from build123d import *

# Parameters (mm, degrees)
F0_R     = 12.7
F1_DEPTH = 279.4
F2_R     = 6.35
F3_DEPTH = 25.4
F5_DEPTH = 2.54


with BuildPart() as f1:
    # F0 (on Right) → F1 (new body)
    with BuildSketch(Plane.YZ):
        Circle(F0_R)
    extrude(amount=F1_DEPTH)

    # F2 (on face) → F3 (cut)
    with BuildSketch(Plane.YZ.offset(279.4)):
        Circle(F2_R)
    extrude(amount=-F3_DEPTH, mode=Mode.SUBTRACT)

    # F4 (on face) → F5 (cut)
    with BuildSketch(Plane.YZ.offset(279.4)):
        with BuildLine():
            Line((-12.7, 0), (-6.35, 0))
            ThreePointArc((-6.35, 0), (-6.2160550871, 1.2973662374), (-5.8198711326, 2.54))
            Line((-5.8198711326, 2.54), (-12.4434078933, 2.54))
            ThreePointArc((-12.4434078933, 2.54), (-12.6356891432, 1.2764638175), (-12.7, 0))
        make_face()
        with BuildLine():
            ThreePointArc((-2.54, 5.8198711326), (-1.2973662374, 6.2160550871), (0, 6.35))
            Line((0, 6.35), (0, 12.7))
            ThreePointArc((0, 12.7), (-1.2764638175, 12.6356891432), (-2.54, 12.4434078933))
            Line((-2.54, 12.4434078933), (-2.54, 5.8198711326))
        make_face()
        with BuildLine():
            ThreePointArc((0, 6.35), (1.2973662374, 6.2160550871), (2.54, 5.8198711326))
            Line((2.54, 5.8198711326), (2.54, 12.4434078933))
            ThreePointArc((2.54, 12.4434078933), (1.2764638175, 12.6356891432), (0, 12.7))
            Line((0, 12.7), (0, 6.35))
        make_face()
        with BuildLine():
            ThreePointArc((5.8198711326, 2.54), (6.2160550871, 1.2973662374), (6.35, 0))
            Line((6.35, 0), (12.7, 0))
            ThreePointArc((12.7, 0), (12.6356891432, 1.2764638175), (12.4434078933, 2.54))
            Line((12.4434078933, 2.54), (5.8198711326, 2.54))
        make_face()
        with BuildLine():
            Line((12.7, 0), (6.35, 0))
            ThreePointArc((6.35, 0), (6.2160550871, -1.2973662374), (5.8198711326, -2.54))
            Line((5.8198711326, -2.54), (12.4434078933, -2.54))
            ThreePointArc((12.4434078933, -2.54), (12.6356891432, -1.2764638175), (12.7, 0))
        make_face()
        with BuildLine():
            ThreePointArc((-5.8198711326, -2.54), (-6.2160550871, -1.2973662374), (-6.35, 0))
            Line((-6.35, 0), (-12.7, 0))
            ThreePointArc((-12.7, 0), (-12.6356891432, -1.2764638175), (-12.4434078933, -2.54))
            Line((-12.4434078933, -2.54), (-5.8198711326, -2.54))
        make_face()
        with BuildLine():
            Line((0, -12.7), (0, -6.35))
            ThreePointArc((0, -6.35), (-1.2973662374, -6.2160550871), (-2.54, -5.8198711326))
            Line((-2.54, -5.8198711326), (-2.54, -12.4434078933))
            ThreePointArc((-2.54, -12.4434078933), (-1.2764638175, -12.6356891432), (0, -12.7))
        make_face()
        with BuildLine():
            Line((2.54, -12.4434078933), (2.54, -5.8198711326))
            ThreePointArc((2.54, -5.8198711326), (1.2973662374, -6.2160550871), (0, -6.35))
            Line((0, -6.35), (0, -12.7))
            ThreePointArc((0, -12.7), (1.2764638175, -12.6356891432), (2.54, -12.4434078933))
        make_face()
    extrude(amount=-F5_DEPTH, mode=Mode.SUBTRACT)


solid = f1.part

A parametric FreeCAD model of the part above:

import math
import FreeCAD as App
import Part
import Sketcher

V = App.Vector
Q = App.Units.Quantity

doc = App.newDocument("Part")
body = doc.addObject("PartDesign::Body", "Body")

# Sketch on YZ plane
sketch1 = doc.addObject("Sketcher::SketchObject", "Sketch")
body.addObject(sketch1)
sketch1.AttachmentSupport = (doc.YZ_Plane, [""])
sketch1.MapMode = "FlatFace"
sketch1.addGeometry(Part.Circle(V(0, 0, 0), V(0, 0, 1), 13), False)
sketch1.addConstraint(Sketcher.Constraint("Coincident", 0, 3, -1, 1))
sketch1.addConstraint(Sketcher.Constraint("Diameter", 0, Q("1 in")))
pad1 = doc.addObject("PartDesign::Pad", "Pad")
body.addObject(pad1)
pad1.Profile = sketch1
pad1.Length = Q("11 in")

# Sketch on YZ plane
sketch2 = doc.addObject("Sketcher::SketchObject", "Sketch001")
body.addObject(sketch2)
sketch2.AttachmentSupport = (doc.YZ_Plane, [""])
sketch2.MapMode = "FlatFace"
sketch2.AttachmentOffset = App.Placement(V(0, 0, 11 * 25.4), App.Rotation())
sketch2.addGeometry(Part.Circle(V(0, 0, 0), V(0, 0, 1), 6), False)
sketch2.addConstraint(Sketcher.Constraint("Coincident", 0, 3, -1, 1))
sketch2.addConstraint(Sketcher.Constraint("Diameter", 0, Q("0.5 in")))
pocket1 = doc.addObject("PartDesign::Pocket", "Pocket")
body.addObject(pocket1)
pocket1.Profile = sketch2
pocket1.Length = Q("1 in")

# Sketch on YZ plane
sketch3 = doc.addObject("Sketcher::SketchObject", "Sketch002")
body.addObject(sketch3)
sketch3.AttachmentSupport = (doc.YZ_Plane, [""])
sketch3.MapMode = "FlatFace"
sketch3.AttachmentOffset = App.Placement(V(0, 0, 11 * 25.4), App.Rotation())
sketch3.addGeometry(Part.ArcOfCircle(Part.Circle(V(0, 0, 0), V(0, 0, 1), 6.4), math.radians(156), math.radians(180)), False)
sketch3.addGeometry(Part.LineSegment(V(-5.8, 2.5, 0), V(-12.4, 2.5, 0)), False)
sketch3.addGeometry(Part.ArcOfCircle(Part.Circle(V(0, 0, 0), V(0, 0, 1), 12.7), math.radians(168.46), math.radians(180)), False)
sketch3.addGeometry(Part.ArcOfCircle(Part.Circle(V(0, 0, 0), V(0, 0, 1), 12.7), math.radians(180), math.radians(191.54)), False)
sketch3.addGeometry(Part.LineSegment(V(-12.4, -2.5, 0), V(-5.8, -2.5, 0)), False)
sketch3.addGeometry(Part.ArcOfCircle(Part.Circle(V(0, 0, 0), V(0, 0, 1), 6.4), math.radians(180), math.radians(204)), False)
sketch3.addGeometry(Part.ArcOfCircle(Part.Circle(V(0, 0, 0), V(0, 0, 1), 6.4), math.radians(90), math.radians(114)), False)
sketch3.addGeometry(Part.ArcOfCircle(Part.Circle(V(0, 0, 0), V(0, 0, 1), 6.4), math.radians(66), math.radians(90)), False)
sketch3.addGeometry(Part.LineSegment(V(2.5, 5.8, 0), V(2.5, 12.4, 0)), False)
sketch3.addGeometry(Part.ArcOfCircle(Part.Circle(V(0, 0, 0), V(0, 0, 1), 12.7), math.radians(78.46), math.radians(90)), False)
sketch3.addGeometry(Part.ArcOfCircle(Part.Circle(V(0, 0, 0), V(0, 0, 1), 12.7), math.radians(90), math.radians(101.54)), False)
sketch3.addGeometry(Part.LineSegment(V(-2.5, 12.4, 0), V(-2.5, 5.8, 0)), False)
sketch3.addGeometry(Part.ArcOfCircle(Part.Circle(V(0, 0, 0), V(0, 0, 1), 6.4), math.radians(0), math.radians(24)), False)
sketch3.addGeometry(Part.ArcOfCircle(Part.Circle(V(0, 0, 0), V(0, 0, 1), 6.4), math.radians(-24), math.radians(0)), False)
sketch3.addGeometry(Part.LineSegment(V(5.8, -2.5, 0), V(12.4, -2.5, 0)), False)
sketch3.addGeometry(Part.ArcOfCircle(Part.Circle(V(0, 0, 0), V(0, 0, 1), 12.7), math.radians(-11.54), math.radians(0)), False)
sketch3.addGeometry(Part.ArcOfCircle(Part.Circle(V(0, 0, 0), V(0, 0, 1), 12.7), math.radians(0), math.radians(11.54)), False)
sketch3.addGeometry(Part.LineSegment(V(12.4, 2.5, 0), V(5.8, 2.5, 0)), False)
sketch3.addGeometry(Part.ArcOfCircle(Part.Circle(V(0, 0, 0), V(0, 0, 1), 6.4), math.radians(-114), math.radians(-90)), False)
sketch3.addGeometry(Part.LineSegment(V(-2.5, -5.8, 0), V(-2.5, -12.4, 0)), False)
sketch3.addGeometry(Part.ArcOfCircle(Part.Circle(V(0, 0, 0), V(0, 0, 1), 12.7), math.radians(-101.54), math.radians(-90)), False)
sketch3.addGeometry(Part.ArcOfCircle(Part.Circle(V(0, 0, 0), V(0, 0, 1), 12.7), math.radians(-90), math.radians(-78.46)), False)
sketch3.addGeometry(Part.LineSegment(V(2.5, -12.4, 0), V(2.5, -5.8, 0)), False)
sketch3.addGeometry(Part.ArcOfCircle(Part.Circle(V(0, 0, 0), V(0, 0, 1), 6.4), math.radians(-90), math.radians(-66)), False)
sketch3.addConstraint(Sketcher.Constraint("Coincident", 0, 1, 1, 1))
sketch3.addConstraint(Sketcher.Constraint("Coincident", 1, 2, 2, 1))
sketch3.addConstraint(Sketcher.Constraint("Tangent", 2, 2, 3, 1))
sketch3.addConstraint(Sketcher.Constraint("Coincident", 3, 2, 4, 1))
sketch3.addConstraint(Sketcher.Constraint("Coincident", 4, 2, 5, 2))
sketch3.addConstraint(Sketcher.Constraint("Tangent", 5, 1, 0, 2))
sketch3.addConstraint(Sketcher.Constraint("Tangent", 6, 1, 7, 2))
sketch3.addConstraint(Sketcher.Constraint("Coincident", 7, 1, 8, 1))
sketch3.addConstraint(Sketcher.Constraint("Coincident", 8, 2, 9, 1))
sketch3.addConstraint(Sketcher.Constraint("Tangent", 9, 2, 10, 1))
sketch3.addConstraint(Sketcher.Constraint("Coincident", 10, 2, 11, 1))
sketch3.addConstraint(Sketcher.Constraint("Coincident", 11, 2, 6, 2))
sketch3.addConstraint(Sketcher.Constraint("Tangent", 12, 1, 13, 2))
sketch3.addConstraint(Sketcher.Constraint("Coincident", 13, 1, 14, 1))
sketch3.addConstraint(Sketcher.Constraint("Coincident", 14, 2, 15, 1))
sketch3.addConstraint(Sketcher.Constraint("Tangent", 15, 2, 16, 1))
sketch3.addConstraint(Sketcher.Constraint("Coincident", 16, 2, 17, 1))
sketch3.addConstraint(Sketcher.Constraint("Coincident", 17, 2, 12, 2))
sketch3.addConstraint(Sketcher.Constraint("Coincident", 18, 1, 19, 1))
sketch3.addConstraint(Sketcher.Constraint("Coincident", 19, 2, 20, 1))
sketch3.addConstraint(Sketcher.Constraint("Tangent", 20, 2, 21, 1))
sketch3.addConstraint(Sketcher.Constraint("Coincident", 21, 2, 22, 1))
sketch3.addConstraint(Sketcher.Constraint("Coincident", 22, 2, 23, 2))
sketch3.addConstraint(Sketcher.Constraint("Tangent", 23, 1, 18, 2))
sketch3.addConstraint(Sketcher.Constraint("Horizontal", 1))
sketch3.addConstraint(Sketcher.Constraint("Horizontal", 4))
sketch3.addConstraint(Sketcher.Constraint("Vertical", 8))
sketch3.addConstraint(Sketcher.Constraint("Vertical", 11))
sketch3.addConstraint(Sketcher.Constraint("Horizontal", 14))
sketch3.addConstraint(Sketcher.Constraint("Horizontal", 17))
sketch3.addConstraint(Sketcher.Constraint("Vertical", 19))
sketch3.addConstraint(Sketcher.Constraint("Vertical", 22))
sketch3.addConstraint(Sketcher.Constraint("Coincident", 0, 3, -1, 1))
sketch3.addConstraint(Sketcher.Constraint("Coincident", 2, 3, -1, 1))
sketch3.addConstraint(Sketcher.Constraint("Coincident", 6, 3, -1, 1))
sketch3.addConstraint(Sketcher.Constraint("Coincident", 9, 3, -1, 1))
sketch3.addConstraint(Sketcher.Constraint("Coincident", 12, 3, -1, 1))
sketch3.addConstraint(Sketcher.Constraint("Coincident", 15, 3, -1, 1))
sketch3.addConstraint(Sketcher.Constraint("Coincident", 18, 3, -1, 1))
sketch3.addConstraint(Sketcher.Constraint("Coincident", 20, 3, -1, 1))
sketch3.addConstraint(Sketcher.Constraint("Equal", 2, 3))
sketch3.addConstraint(Sketcher.Constraint("Equal", 0, 5))
sketch3.addConstraint(Sketcher.Constraint("Equal", 5, 6))
sketch3.addConstraint(Sketcher.Constraint("Equal", 6, 7))
sketch3.addConstraint(Sketcher.Constraint("Equal", 3, 9))
sketch3.addConstraint(Sketcher.Constraint("Equal", 9, 10))
sketch3.addConstraint(Sketcher.Constraint("Equal", 7, 12))
sketch3.addConstraint(Sketcher.Constraint("Equal", 12, 13))
sketch3.addConstraint(Sketcher.Constraint("Equal", 10, 15))
sketch3.addConstraint(Sketcher.Constraint("Equal", 15, 16))
sketch3.addConstraint(Sketcher.Constraint("Equal", 13, 18))
sketch3.addConstraint(Sketcher.Constraint("Equal", 16, 20))
sketch3.addConstraint(Sketcher.Constraint("Equal", 20, 21))
sketch3.addConstraint(Sketcher.Constraint("Equal", 18, 23))
sketch3.addConstraint(Sketcher.Constraint("PointOnObject", 2, 2, -1))
sketch3.addConstraint(Sketcher.Constraint("PointOnObject", 5, 1, -1))
sketch3.addConstraint(Sketcher.Constraint("PointOnObject", 6, 1, -2))
sketch3.addConstraint(Sketcher.Constraint("PointOnObject", 9, 2, -2))
sketch3.addConstraint(Sketcher.Constraint("PointOnObject", 12, 1, -1))
sketch3.addConstraint(Sketcher.Constraint("PointOnObject", 15, 2, -1))
sketch3.addConstraint(Sketcher.Constraint("PointOnObject", 20, 2, -2))
sketch3.addConstraint(Sketcher.Constraint("PointOnObject", 23, 1, -2))
sketch3.addConstraint(Sketcher.Constraint("Horizontal", 8, 2, 10, 2))
sketch3.addConstraint(Sketcher.Constraint("Horizontal", 4, 2, 13, 1))
sketch3.addConstraint(Sketcher.Constraint("Horizontal", 1, 2, 16, 2))
sketch3.addConstraint(Sketcher.Constraint("Horizontal", 19, 2, 21, 2))
sketch3.addConstraint(Sketcher.Constraint("Vertical", 1, 2, 3, 2))
sketch3.addConstraint(Sketcher.Constraint("Vertical", 11, 2, 18, 1))
sketch3.addConstraint(Sketcher.Constraint("Equal", 17, 8))
sketch3.addConstraint(Sketcher.Constraint("Radius", 2, Q("0.5 in")))
sketch3.addConstraint(Sketcher.Constraint("Radius", 0, Q("0.25 in")))
sketch3.addConstraint(Sketcher.Constraint("DistanceY", -1, 1, 0, 1, Q("0.1 in")))
pocket2 = doc.addObject("PartDesign::Pocket", "Pocket001")
body.addObject(pocket2)
pocket2.Profile = sketch3
pocket2.Length = Q("0.1 in")

doc.recompute()
